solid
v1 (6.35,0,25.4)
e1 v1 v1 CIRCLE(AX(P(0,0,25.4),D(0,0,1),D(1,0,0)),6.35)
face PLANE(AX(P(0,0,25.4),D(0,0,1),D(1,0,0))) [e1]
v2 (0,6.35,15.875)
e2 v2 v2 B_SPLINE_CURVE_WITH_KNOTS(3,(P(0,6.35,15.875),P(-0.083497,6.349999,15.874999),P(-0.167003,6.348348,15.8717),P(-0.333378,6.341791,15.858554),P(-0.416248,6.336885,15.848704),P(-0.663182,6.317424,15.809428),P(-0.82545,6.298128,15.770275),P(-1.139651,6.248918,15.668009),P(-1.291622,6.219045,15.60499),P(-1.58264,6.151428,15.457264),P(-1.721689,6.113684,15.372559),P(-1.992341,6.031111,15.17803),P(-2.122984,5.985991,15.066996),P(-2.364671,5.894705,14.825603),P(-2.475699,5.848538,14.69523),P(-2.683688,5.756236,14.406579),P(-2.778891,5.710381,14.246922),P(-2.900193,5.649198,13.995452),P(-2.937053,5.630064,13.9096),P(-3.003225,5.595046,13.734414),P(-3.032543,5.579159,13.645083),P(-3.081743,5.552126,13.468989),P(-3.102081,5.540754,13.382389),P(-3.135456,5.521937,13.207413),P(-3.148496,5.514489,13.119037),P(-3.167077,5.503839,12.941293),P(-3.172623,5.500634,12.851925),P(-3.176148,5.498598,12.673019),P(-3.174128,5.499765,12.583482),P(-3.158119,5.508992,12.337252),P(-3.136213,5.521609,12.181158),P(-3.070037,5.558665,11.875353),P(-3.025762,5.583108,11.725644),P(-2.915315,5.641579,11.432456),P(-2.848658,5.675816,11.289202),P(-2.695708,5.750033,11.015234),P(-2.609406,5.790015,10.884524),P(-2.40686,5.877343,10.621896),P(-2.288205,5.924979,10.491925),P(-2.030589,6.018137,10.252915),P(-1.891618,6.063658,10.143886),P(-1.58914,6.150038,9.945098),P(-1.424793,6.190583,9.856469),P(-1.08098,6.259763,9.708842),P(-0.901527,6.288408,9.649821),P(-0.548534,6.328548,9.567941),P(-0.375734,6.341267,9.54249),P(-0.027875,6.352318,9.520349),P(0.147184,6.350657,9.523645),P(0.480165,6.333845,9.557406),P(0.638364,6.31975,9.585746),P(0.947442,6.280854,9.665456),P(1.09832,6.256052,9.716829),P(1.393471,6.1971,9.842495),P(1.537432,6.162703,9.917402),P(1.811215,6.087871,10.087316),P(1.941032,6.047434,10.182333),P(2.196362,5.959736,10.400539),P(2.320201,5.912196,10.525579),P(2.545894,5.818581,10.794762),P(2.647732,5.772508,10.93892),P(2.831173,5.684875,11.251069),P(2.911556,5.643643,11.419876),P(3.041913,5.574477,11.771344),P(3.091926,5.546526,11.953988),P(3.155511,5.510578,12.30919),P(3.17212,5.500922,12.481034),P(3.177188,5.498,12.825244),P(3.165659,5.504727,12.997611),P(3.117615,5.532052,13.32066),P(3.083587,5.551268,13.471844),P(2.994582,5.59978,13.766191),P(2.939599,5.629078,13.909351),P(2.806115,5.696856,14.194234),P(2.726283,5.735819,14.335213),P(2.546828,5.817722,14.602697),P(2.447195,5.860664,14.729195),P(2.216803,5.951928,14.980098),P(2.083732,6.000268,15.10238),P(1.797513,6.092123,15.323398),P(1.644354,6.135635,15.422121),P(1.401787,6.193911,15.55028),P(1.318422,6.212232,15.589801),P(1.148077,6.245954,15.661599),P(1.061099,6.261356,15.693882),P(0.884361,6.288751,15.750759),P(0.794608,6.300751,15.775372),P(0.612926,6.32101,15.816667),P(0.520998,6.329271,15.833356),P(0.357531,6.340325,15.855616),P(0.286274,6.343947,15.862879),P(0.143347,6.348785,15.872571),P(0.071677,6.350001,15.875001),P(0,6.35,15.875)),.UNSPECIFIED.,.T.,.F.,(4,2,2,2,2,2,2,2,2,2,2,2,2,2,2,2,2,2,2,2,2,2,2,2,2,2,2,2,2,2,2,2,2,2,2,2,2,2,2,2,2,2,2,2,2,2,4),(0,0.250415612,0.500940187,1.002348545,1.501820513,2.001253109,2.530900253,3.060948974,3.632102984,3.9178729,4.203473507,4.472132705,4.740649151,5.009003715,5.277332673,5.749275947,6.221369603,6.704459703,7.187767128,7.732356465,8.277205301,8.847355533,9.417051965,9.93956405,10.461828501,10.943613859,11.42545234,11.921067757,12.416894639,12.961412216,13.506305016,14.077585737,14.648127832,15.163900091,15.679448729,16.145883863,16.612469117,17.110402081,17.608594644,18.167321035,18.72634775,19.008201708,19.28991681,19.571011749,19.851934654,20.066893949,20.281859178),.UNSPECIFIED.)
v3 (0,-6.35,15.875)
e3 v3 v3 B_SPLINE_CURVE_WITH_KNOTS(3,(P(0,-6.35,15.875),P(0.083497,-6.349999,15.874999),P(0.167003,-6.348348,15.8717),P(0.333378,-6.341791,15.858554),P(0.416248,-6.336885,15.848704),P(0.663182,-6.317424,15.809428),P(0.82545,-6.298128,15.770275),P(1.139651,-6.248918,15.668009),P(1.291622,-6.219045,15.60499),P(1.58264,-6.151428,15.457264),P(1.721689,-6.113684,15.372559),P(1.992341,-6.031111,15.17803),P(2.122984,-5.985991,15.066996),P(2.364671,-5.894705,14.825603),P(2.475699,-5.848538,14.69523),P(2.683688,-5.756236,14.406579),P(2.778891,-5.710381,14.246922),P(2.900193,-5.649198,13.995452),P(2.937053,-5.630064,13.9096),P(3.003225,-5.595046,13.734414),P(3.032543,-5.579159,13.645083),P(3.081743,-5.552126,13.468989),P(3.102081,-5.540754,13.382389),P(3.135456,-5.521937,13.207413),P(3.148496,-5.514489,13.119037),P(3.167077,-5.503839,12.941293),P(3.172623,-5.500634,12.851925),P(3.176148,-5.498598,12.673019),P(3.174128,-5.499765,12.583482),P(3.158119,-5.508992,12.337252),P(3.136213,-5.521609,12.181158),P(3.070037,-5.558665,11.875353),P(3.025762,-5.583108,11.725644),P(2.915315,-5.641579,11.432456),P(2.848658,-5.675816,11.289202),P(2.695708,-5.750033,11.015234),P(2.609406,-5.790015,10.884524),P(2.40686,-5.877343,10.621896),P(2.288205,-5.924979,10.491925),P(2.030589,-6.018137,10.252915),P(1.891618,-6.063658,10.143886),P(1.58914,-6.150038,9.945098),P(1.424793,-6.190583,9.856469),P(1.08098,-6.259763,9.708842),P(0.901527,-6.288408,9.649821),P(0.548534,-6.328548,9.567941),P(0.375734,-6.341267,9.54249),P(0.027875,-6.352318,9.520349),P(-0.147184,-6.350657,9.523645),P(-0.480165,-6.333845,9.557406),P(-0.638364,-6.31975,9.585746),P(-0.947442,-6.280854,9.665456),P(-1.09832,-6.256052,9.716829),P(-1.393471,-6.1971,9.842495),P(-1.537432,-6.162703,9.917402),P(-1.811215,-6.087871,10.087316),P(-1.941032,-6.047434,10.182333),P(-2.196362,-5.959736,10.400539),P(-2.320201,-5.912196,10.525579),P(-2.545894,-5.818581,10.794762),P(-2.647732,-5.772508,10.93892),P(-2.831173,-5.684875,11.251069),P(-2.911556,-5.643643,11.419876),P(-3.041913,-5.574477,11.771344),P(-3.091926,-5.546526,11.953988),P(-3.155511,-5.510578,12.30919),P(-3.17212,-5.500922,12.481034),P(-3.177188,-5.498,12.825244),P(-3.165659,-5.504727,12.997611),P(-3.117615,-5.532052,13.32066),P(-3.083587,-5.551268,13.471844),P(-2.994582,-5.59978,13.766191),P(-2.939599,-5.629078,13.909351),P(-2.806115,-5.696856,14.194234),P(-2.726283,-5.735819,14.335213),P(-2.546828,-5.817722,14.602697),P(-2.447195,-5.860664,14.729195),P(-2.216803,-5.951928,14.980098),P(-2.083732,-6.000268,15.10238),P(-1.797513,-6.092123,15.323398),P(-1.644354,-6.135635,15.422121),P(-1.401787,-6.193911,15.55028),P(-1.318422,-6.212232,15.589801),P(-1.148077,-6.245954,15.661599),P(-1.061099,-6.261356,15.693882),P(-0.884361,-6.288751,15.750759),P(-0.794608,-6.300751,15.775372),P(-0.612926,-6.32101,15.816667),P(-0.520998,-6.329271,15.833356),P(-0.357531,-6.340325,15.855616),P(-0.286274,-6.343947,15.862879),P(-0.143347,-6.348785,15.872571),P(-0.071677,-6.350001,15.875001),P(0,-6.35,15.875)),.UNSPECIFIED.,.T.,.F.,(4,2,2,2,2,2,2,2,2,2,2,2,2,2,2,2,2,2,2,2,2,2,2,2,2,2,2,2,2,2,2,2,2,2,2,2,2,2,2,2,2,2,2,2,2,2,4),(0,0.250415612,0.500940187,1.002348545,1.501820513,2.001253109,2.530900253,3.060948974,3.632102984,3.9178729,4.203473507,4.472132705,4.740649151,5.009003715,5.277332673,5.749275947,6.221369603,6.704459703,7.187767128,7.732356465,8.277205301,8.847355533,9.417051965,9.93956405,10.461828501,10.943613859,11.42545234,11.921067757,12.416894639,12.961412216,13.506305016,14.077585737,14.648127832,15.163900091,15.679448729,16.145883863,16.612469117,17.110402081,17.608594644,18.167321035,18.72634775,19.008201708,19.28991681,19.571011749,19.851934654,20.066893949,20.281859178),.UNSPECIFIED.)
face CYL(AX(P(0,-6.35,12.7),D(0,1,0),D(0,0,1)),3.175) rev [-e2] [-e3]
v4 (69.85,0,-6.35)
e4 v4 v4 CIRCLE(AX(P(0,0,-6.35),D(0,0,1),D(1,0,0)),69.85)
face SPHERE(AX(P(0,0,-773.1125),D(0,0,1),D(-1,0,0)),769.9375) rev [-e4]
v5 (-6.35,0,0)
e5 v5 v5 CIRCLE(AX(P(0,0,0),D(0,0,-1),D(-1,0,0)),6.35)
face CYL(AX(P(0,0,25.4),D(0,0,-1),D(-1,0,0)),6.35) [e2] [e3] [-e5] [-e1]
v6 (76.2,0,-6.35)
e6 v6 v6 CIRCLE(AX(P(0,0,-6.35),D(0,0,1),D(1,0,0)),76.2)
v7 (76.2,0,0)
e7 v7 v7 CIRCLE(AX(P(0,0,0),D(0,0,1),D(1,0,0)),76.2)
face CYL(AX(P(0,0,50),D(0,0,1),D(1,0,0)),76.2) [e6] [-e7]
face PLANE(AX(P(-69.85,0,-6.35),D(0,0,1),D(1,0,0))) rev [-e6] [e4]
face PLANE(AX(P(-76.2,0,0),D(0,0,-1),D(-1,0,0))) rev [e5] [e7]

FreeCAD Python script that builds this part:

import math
import FreeCAD as App
import Part
import Sketcher
from FreeCAD import Vector
Q = App.Units.Quantity

doc = App.newDocument("Part")
body = doc.addObject("PartDesign::Body", "Body")

# Sketch on XY plane
sketch1 = body.newObject("Sketcher::SketchObject", "Sketch")
sketch1.AttachmentSupport = (doc.getObject("XY_Plane"), [""])
sketch1.MapMode = "FlatFace"
sketch1.addGeometry(Part.Circle(Vector(0, 0, 0), Vector(0, 0, 1), 6), False)
sketch1.addConstraint([
    Sketcher.Constraint("Coincident", 0, 3, -1, 1),
    Sketcher.Constraint("Diameter", 0, Q("0.5 in")),
])
pad1 = body.newObject("PartDesign::Pad", "Pad")
pad1.Profile = sketch1
pad1.Length = Q("1 in")

# Sketch on XZ plane
sketch2 = body.newObject("Sketcher::SketchObject", "Sketch001")
sketch2.AttachmentSupport = (doc.getObject("XZ_Plane"), [""])
sketch2.MapMode = "FlatFace"
sketch2.addGeometry(Part.Circle(Vector(0, 12.7, 0), Vector(0, 0, 1), 3.2), False)
sketch2.addConstraint([
    Sketcher.Constraint("PointOnObject", 0, 3, -2),
    Sketcher.Constraint("Diameter", 0, Q("0.25 in")),
    Sketcher.Constraint("DistanceY", -1, 1, 0, 3, Q("0.5 in")),
])
pocket1 = body.newObject("PartDesign::Pocket", "Pocket")
pocket1.Profile = sketch2
pocket1.Type = "ThroughAll"
pocket1.Midplane = True

# Sketch on XZ plane
sketch3 = body.newObject("Sketcher::SketchObject", "Sketch002")
sketch3.AttachmentSupport = (doc.getObject("XZ_Plane"), [""])
sketch3.MapMode = "FlatFace"
sketch3.addGeometry([
    Part.LineSegment(Vector(-69.8, -6.3, 0), Vector(-76.2, -6.3, 0)),  # 0
    Part.LineSegment(Vector(-76.2, -6.3, 0), Vector(-76.2, 0, 0)),  # 1
    Part.LineSegment(Vector(-76.2, 0, 0), Vector(0, 0, 0)),  # 2
    Part.LineSegment(Vector(0, 0, 0), Vector(0, -3.2, 0)),  # 3
    Part.ArcOfCircle(Part.Circle(Vector(0, -773.1, 0), Vector(0, 0, 1), 769.9), math.radians(90), math.radians(95.21)),  # 4
], False)
sketch3.addConstraint([
    Sketcher.Constraint("Coincident", 0, 2, 1, 1),
    Sketcher.Constraint("Coincident", 1, 2, 2, 1),
    Sketcher.Constraint("Coincident", 2, 2, 3, 1),
    Sketcher.Constraint("Coincident", 3, 2, 4, 1),
    Sketcher.Constraint("Coincident", 4, 2, 0, 1),
    Sketcher.Constraint("Horizontal", 0),
    Sketcher.Constraint("Vertical", 1),
    Sketcher.Constraint("Horizontal", 2),
    Sketcher.Constraint("Vertical", 3),
    Sketcher.Constraint("Coincident", 2, 2, -1, 1),
    Sketcher.Constraint("PointOnObject", 4, 3, -2),
    Sketcher.Constraint("Equal", 0, 1),
    Sketcher.Constraint("DistanceX", 2, 1, 2, 2, Q("3 in")),
    Sketcher.Constraint("Radius", 4, Q("30.3125 in")),
    Sketcher.Constraint("DistanceX", 0, 2, 0, 1, Q("0.25 in")),
])
revolution = body.newObject("PartDesign::Revolution", "Revolution")
revolution.Profile = sketch3
revolution.ReferenceAxis = (sketch3, ["V_Axis"])
revolution.Angle = 360

doc.recompute()
